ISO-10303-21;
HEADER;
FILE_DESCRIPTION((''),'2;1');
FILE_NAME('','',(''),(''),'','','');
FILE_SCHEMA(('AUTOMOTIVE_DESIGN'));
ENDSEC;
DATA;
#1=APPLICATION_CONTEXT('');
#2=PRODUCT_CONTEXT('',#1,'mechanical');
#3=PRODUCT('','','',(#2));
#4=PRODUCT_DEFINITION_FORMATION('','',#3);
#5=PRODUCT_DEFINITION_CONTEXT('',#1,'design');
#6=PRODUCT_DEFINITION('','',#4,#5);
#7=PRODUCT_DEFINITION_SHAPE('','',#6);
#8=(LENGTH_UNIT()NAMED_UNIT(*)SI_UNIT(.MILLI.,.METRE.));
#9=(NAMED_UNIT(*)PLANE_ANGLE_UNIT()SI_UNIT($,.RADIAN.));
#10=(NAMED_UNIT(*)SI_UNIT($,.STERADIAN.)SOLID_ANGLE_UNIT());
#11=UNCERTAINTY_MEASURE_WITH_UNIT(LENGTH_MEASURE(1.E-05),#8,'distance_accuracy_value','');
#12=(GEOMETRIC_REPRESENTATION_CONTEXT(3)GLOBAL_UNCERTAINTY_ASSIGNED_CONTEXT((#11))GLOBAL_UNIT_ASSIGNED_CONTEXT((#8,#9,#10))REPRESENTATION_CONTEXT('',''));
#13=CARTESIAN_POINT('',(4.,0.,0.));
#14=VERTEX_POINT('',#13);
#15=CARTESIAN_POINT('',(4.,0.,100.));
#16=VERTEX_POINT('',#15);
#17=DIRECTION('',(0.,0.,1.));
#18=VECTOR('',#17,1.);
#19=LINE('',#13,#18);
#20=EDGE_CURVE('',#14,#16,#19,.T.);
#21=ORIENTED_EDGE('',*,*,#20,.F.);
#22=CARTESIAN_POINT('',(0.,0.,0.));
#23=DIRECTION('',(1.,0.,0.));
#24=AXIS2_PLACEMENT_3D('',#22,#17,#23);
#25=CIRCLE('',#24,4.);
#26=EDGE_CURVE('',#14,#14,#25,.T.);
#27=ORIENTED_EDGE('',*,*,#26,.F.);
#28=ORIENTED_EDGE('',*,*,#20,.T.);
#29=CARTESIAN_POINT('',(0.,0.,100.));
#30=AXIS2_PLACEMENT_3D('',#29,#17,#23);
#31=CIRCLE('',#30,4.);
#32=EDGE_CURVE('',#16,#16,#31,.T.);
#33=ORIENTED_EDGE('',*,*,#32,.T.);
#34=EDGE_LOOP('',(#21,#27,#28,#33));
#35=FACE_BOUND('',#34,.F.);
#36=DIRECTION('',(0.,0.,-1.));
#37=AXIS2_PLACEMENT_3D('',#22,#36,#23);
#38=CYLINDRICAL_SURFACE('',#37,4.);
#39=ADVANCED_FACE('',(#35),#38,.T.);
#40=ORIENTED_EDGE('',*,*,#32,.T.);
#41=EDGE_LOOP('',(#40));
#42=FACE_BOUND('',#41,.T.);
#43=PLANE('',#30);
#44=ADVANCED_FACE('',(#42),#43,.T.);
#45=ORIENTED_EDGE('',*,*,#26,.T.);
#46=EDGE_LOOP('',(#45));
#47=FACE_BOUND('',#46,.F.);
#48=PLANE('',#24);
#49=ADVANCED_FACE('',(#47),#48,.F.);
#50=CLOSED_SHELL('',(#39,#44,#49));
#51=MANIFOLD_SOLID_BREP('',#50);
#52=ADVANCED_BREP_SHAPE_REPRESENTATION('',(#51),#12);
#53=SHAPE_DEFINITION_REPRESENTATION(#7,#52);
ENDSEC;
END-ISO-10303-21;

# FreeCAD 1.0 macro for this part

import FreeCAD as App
import Part
import Sketcher
from FreeCAD import Vector
Q = App.Units.Quantity

doc = App.newDocument("Part")
body = doc.addObject("PartDesign::Body", "Body")

# Sketch on XY plane
sketch1 = body.newObject("Sketcher::SketchObject", "Sketch")
sketch1.AttachmentSupport = (doc.getObject("XY_Plane"), [""])
sketch1.MapMode = "FlatFace"
sketch1.addGeometry(Part.Circle(Vector(0, 0, 0), Vector(0, 0, 1), 4), False)
sketch1.addConstraint([
    Sketcher.Constraint("Coincident", 0, 3, -1, 1),
    Sketcher.Constraint("Diameter", 0, Q("8 mm")),
])
pad1 = body.newObject("PartDesign::Pad", "Pad")
pad1.Profile = sketch1
pad1.Length = 100

doc.recompute()
